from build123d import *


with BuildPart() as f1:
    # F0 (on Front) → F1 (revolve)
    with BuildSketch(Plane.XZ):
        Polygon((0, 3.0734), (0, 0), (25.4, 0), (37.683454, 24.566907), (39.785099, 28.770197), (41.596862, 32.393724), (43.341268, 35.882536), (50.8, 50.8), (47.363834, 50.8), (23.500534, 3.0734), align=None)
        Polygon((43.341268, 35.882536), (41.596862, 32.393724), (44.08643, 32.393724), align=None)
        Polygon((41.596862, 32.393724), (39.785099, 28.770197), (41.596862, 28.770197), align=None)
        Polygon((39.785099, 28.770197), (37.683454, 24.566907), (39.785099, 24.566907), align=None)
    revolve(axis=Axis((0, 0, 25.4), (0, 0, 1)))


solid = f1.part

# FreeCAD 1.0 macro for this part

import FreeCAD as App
import Part
import Sketcher
from FreeCAD import Vector
Q = App.Units.Quantity

doc = App.newDocument("Part")
body = doc.addObject("PartDesign::Body", "Body")

sketch1 = body.newObject("Sketcher::SketchObject", "Sketch")
sketch1.AttachmentSupport = (doc.getObject("XZ_Plane"), [""])
sketch1.MapMode = "FlatFace"
sketch1.addGeometry(Part.LineSegment(Vector(0, 3.1, 0), Vector(0, 0, 0)), False)
sketch1.addGeometry(Part.LineSegment(Vector(0, 0, 0), Vector(25.4, 0, 0)), False)
sketch1.addGeometry(Part.LineSegment(Vector(25.4, 0, 0), Vector(37.7, 24.6, 0)), False)
sketch1.addGeometry(Part.LineSegment(Vector(37.7, 24.6, 0), Vector(39.8, 24.6, 0)), False)
sketch1.addGeometry(Part.LineSegment(Vector(39.8, 24.6, 0), Vector(39.8, 28.8, 0)), False)
sketch1.addGeometry(Part.LineSegment(Vector(39.8, 28.8, 0), Vector(41.6, 28.8, 0)), False)
sketch1.addGeometry(Part.LineSegment(Vector(41.6, 28.8, 0), Vector(41.6, 32.4, 0)), False)
sketch1.addGeometry(Part.LineSegment(Vector(41.6, 32.4, 0), Vector(44.1, 32.4, 0)), False)
sketch1.addGeometry(Part.LineSegment(Vector(44.1, 32.4, 0), Vector(43.3, 35.9, 0)), False)
sketch1.addGeometry(Part.LineSegment(Vector(43.3, 35.9, 0), Vector(50.8, 50.8, 0)), False)
sketch1.addGeometry(Part.LineSegment(Vector(50.8, 50.8, 0), Vector(47.4, 50.8, 0)), False)
sketch1.addGeometry(Part.LineSegment(Vector(47.4, 50.8, 0), Vector(23.5, 3.1, 0)), False)
sketch1.addGeometry(Part.LineSegment(Vector(23.5, 3.1, 0), Vector(0, 3.1, 0)), False)
sketch1.addConstraint(Sketcher.Constraint("Coincident", 0, 2, 1, 1))
sketch1.addConstraint(Sketcher.Constraint("Coincident", 1, 2, 2, 1))
sketch1.addConstraint(Sketcher.Constraint("Coincident", 2, 2, 3, 1))
sketch1.addConstraint(Sketcher.Constraint("Coincident", 3, 2, 4, 1))
sketch1.addConstraint(Sketcher.Constraint("Coincident", 4, 2, 5, 1))
sketch1.addConstraint(Sketcher.Constraint("Coincident", 5, 2, 6, 1))
sketch1.addConstraint(Sketcher.Constraint("Coincident", 6, 2, 7, 1))
sketch1.addConstraint(Sketcher.Constraint("Coincident", 7, 2, 8, 1))
sketch1.addConstraint(Sketcher.Constraint("Coincident", 8, 2, 9, 1))
sketch1.addConstraint(Sketcher.Constraint("Coincident", 9, 2, 10, 1))
sketch1.addConstraint(Sketcher.Constraint("Coincident", 10, 2, 11, 1))
sketch1.addConstraint(Sketcher.Constraint("Coincident", 11, 2, 12, 1))
sketch1.addConstraint(Sketcher.Constraint("Coincident", 12, 2, 0, 1))
sketch1.addConstraint(Sketcher.Constraint("Vertical", 0))
sketch1.addConstraint(Sketcher.Constraint("Horizontal", 1))
sketch1.addConstraint(Sketcher.Constraint("Horizontal", 3))
sketch1.addConstraint(Sketcher.Constraint("Vertical", 4))
sketch1.addConstraint(Sketcher.Constraint("Horizontal", 5))
sketch1.addConstraint(Sketcher.Constraint("Vertical", 6))
sketch1.addConstraint(Sketcher.Constraint("Horizontal", 7))
sketch1.addConstraint(Sketcher.Constraint("Horizontal", 10))
sketch1.addConstraint(Sketcher.Constraint("Horizontal", 12))
sketch1.addConstraint(Sketcher.Constraint("Coincident", 0, 2, -1, 1))
sketch1.addConstraint(Sketcher.Constraint("Parallel", 2, 9))
sketch1.addConstraint(Sketcher.Constraint("Parallel", 9, 11))
sketch1.addConstraint(Sketcher.Constraint("DistanceX", 1, 1, 1, 2, Q("1 in")))
sketch1.addConstraint(Sketcher.Constraint("DistanceX", -1, 1, 9, 2, Q("2 in")))
sketch1.addConstraint(Sketcher.Constraint("DistanceY", -1, 1, 9, 2, Q("2 in")))
sketch1.addConstraint(Sketcher.Constraint("DistanceY", 0, 2, 0, 1, Q("0.121 in")))
sketch1.addConstraint(Sketcher.Constraint("DistanceY", 4, 1, 4, 2, 4.20329))
sketch1.addConstraint(Sketcher.Constraint("DistanceX", -1, 1, 3, 2, 39.785099))
sketch1.addConstraint(Sketcher.Constraint("Distance", 9, 16.678232))
sketch1.addConstraint(Sketcher.Constraint("Distance", 11, 53.359961))
sketch1.addConstraint(Sketcher.Constraint("DistanceX", 3, 1, 3, 2, 2.101645))
sketch1.addConstraint(Sketcher.Constraint("DistanceX", 5, 1, 5, 2, 1.811763))
sketch1.addConstraint(Sketcher.Constraint("DistanceX", 7, 1, 7, 2, 2.489568))
sketch1.addConstraint(Sketcher.Constraint("DistanceX", 10, 2, 10, 1, 3.436166))
sketch1.addConstraint(Sketcher.Constraint("DistanceY", 6, 1, 6, 2, 3.623527))
revolution = body.newObject("PartDesign::Revolution", "Revolution")
revolution.Profile = sketch1
revolution.ReferenceAxis = (sketch1, ["V_Axis"])
revolution.Angle = 360

doc.recompute()
